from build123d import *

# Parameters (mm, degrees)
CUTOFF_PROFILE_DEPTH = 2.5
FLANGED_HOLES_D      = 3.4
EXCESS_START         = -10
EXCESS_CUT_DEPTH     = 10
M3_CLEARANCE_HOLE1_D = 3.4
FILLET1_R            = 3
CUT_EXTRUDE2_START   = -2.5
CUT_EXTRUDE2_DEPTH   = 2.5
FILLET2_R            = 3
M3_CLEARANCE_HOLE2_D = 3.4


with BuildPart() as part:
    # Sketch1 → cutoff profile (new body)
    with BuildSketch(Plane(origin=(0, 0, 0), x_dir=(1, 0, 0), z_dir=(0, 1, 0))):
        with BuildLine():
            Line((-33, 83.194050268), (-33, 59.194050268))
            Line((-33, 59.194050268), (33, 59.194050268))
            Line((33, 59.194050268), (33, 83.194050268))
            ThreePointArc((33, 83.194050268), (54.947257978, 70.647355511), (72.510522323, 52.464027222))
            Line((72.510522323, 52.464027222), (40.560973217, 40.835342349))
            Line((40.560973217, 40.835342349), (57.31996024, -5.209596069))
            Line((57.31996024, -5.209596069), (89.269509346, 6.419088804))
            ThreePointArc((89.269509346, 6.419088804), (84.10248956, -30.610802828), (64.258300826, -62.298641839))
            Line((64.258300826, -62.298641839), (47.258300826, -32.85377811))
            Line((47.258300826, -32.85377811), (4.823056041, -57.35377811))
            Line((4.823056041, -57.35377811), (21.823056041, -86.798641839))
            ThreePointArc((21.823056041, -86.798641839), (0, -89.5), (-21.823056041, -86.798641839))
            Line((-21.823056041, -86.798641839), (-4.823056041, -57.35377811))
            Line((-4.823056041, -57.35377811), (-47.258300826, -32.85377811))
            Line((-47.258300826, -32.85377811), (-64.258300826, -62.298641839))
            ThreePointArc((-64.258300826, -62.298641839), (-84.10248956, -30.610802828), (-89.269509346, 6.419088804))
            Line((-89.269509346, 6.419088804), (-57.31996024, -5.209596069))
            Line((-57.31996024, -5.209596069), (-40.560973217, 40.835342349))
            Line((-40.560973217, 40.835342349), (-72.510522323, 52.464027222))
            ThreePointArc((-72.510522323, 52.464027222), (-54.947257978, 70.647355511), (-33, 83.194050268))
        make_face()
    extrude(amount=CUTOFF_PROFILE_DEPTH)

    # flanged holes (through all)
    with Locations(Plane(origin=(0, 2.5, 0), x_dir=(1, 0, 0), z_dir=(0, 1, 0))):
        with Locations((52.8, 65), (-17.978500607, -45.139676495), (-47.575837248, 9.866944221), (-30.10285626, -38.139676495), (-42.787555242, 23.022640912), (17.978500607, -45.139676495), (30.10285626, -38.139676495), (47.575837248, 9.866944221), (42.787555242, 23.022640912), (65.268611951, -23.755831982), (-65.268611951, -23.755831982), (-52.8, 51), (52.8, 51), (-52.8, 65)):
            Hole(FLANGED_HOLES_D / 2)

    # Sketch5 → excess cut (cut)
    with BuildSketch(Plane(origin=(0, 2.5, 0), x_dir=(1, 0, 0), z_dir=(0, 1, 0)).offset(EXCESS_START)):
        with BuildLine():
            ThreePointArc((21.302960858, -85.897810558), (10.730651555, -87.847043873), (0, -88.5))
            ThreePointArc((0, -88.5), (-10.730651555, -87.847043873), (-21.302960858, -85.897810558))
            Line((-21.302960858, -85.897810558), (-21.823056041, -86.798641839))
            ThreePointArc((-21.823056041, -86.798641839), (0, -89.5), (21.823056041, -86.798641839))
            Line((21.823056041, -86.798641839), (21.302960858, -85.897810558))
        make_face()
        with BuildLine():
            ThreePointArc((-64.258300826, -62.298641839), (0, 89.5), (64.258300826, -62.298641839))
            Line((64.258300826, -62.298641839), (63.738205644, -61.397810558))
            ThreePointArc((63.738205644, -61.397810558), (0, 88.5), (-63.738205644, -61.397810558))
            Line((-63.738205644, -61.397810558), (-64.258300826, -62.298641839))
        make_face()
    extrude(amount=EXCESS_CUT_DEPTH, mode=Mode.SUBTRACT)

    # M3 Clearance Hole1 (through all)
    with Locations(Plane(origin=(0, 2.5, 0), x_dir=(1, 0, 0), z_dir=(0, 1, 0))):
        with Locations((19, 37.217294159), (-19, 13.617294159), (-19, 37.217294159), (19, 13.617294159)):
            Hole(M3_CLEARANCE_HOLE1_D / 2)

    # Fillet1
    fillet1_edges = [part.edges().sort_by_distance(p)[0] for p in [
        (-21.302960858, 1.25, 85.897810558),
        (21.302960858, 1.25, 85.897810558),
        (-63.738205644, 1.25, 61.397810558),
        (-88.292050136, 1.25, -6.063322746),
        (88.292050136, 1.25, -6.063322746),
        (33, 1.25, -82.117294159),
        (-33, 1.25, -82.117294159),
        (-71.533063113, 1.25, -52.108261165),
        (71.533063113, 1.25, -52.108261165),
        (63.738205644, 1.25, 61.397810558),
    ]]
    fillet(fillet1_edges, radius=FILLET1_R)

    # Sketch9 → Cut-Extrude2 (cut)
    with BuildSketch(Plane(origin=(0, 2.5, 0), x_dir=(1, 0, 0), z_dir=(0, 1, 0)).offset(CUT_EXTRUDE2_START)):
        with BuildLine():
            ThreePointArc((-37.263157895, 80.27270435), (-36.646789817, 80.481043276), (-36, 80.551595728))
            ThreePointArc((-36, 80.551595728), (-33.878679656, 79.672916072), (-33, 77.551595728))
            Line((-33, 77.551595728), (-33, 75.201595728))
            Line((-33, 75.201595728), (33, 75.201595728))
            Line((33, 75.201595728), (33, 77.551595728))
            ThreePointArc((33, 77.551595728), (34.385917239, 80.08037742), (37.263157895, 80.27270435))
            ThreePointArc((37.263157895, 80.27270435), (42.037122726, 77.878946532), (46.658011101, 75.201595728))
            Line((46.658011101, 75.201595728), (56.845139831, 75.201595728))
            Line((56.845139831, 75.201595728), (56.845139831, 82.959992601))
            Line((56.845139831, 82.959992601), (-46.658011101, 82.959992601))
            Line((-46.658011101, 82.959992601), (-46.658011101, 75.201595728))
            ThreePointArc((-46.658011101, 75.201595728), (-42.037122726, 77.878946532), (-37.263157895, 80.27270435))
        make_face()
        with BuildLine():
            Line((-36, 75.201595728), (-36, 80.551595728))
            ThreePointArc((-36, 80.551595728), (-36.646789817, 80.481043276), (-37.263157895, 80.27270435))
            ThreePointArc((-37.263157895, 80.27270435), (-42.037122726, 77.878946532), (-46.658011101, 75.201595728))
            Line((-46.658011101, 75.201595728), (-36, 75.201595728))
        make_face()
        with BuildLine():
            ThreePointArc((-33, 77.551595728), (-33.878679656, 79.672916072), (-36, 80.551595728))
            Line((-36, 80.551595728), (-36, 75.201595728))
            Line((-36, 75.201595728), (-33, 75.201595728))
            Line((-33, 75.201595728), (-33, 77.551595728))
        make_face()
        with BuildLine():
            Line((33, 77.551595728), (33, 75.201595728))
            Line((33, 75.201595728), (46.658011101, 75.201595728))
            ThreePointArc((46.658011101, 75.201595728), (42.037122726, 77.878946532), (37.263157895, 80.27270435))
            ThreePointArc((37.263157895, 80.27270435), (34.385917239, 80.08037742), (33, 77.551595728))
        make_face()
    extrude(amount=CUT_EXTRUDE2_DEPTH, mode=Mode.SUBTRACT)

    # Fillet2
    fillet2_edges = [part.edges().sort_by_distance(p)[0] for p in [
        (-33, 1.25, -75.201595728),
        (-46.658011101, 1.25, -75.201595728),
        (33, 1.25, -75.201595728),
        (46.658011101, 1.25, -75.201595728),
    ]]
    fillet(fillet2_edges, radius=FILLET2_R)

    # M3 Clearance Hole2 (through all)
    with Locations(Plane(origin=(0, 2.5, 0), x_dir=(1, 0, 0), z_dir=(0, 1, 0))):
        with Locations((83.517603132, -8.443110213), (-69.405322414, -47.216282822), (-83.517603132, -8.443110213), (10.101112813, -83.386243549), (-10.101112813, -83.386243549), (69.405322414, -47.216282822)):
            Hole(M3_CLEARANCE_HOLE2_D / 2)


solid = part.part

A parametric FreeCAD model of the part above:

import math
import FreeCAD as App
import Part
import Sketcher
Q = App.Units.Quantity


def edges_at(feature, points):
    """Names of the edges that pass closest to the given points."""
    edges = feature.Shape.Edges
    near = lambda p: min(range(len(edges)), key=lambda i: edges[i].distToShape(Part.Vertex(*p))[0])
    return sorted({f"Edge{near(p) + 1}" for p in points})


def add_polygon(sketch, points):
    """Adds a closed chain of lines whose ends are joined by coincident constraints."""
    first, n = sketch.GeometryCount, len(points)
    for a, b in zip(points, points[1:] + points[:1]):
        sketch.addGeometry(Part.LineSegment(App.Vector(*a, 0), App.Vector(*b, 0)), False)
    for i in range(n):
        sketch.addConstraint(Sketcher.Constraint("Coincident", first + i, 2, first + (i + 1) % n, 1))

doc = App.newDocument("Part")
body = doc.addObject("PartDesign::Body", "Body")

sketch1 = body.newObject("Sketcher::SketchObject", "Sketch")
sketch1.AttachmentSupport = (doc.getObject("XZ_Plane"), [""])
sketch1.MapMode = "FlatFace"
sketch1.addGeometry([
    Part.LineSegment(App.Vector(-33, -59.19405, 0), App.Vector(-33, -83.19405, 0)),
    Part.ArcOfCircle(Part.Circle(App.Vector(0, 0, 0), App.Vector(0, 0, 1), 89.5), math.radians(-144.11288), math.radians(-111.636395)),
    Part.LineSegment(App.Vector(-72.510522, -52.464027, 0), App.Vector(-40.560973, -40.835342, 0)),
    Part.LineSegment(App.Vector(-40.560973, -40.835342, 0), App.Vector(-57.31996, 5.209596, 0)),
    Part.LineSegment(App.Vector(-57.31996, 5.209596, 0), App.Vector(-89.269509, -6.419089, 0)),
    Part.ArcOfCircle(Part.Circle(App.Vector(0, 0, 0), App.Vector(0, 0, 1), 89.5), math.radians(135.88712), math.radians(184.11288)),
    Part.LineSegment(App.Vector(-64.258301, 62.298642, 0), App.Vector(-47.258301, 32.853778, 0)),
    Part.LineSegment(App.Vector(-47.258301, 32.853778, 0), App.Vector(-4.823056, 57.353778, 0)),
    Part.LineSegment(App.Vector(-4.823056, 57.353778, 0), App.Vector(-21.823056, 86.798642, 0)),
    Part.ArcOfCircle(Part.Circle(App.Vector(0, 0, 0), App.Vector(0, 0, 1), 89.5), math.radians(75.88712), math.radians(104.11288)),
    Part.LineSegment(App.Vector(21.823056, 86.798642, 0), App.Vector(4.823056, 57.353778, 0)),
    Part.LineSegment(App.Vector(4.823056, 57.353778, 0), App.Vector(47.258301, 32.853778, 0)),
    Part.LineSegment(App.Vector(47.258301, 32.853778, 0), App.Vector(64.258301, 62.298642, 0)),
    Part.ArcOfCircle(Part.Circle(App.Vector(0, 0, 0), App.Vector(0, 0, 1), 89.5), math.radians(-4.11288), math.radians(44.11288)),
    Part.LineSegment(App.Vector(89.269509, -6.419089, 0), App.Vector(57.31996, 5.209596, 0)),
    Part.LineSegment(App.Vector(57.31996, 5.209596, 0), App.Vector(40.560973, -40.835342, 0)),
    Part.LineSegment(App.Vector(40.560973, -40.835342, 0), App.Vector(72.510522, -52.464027, 0)),
    Part.ArcOfCircle(Part.Circle(App.Vector(0, 0, 0), App.Vector(0, 0, 1), 89.5), math.radians(-68.363605), math.radians(-35.88712)),
    Part.LineSegment(App.Vector(33, -83.19405, 0), App.Vector(33, -59.19405, 0)),
    Part.LineSegment(App.Vector(33, -59.19405, 0), App.Vector(-33, -59.19405, 0)),
], False)
sketch1.addConstraint([
    Sketcher.Constraint("Coincident", 0, 2, 1, 2),
    Sketcher.Constraint("Coincident", 1, 1, 2, 1),
    Sketcher.Constraint("Coincident", 2, 2, 3, 1),
    Sketcher.Constraint("Coincident", 3, 2, 4, 1),
    Sketcher.Constraint("Coincident", 4, 2, 5, 2),
    Sketcher.Constraint("Coincident", 5, 1, 6, 1),
    Sketcher.Constraint("Coincident", 6, 2, 7, 1),
    Sketcher.Constraint("Coincident", 7, 2, 8, 1),
    Sketcher.Constraint("Coincident", 8, 2, 9, 2),
    Sketcher.Constraint("Coincident", 9, 1, 10, 1),
    Sketcher.Constraint("Coincident", 10, 2, 11, 1),
    Sketcher.Constraint("Coincident", 11, 2, 12, 1),
    Sketcher.Constraint("Coincident", 12, 2, 13, 2),
    Sketcher.Constraint("Coincident", 13, 1, 14, 1),
    Sketcher.Constraint("Coincident", 14, 2, 15, 1),
    Sketcher.Constraint("Coincident", 15, 2, 16, 1),
    Sketcher.Constraint("Coincident", 16, 2, 17, 2),
    Sketcher.Constraint("Coincident", 17, 1, 18, 1),
    Sketcher.Constraint("Coincident", 18, 2, 19, 1),
    Sketcher.Constraint("Coincident", 19, 2, 0, 1),
    Sketcher.Constraint("Vertical", 0),
    Sketcher.Constraint("Vertical", 18),
    Sketcher.Constraint("Horizontal", 19),
    Sketcher.Constraint("Coincident", 1, 3, -1, 1),
    Sketcher.Constraint("Coincident", 5, 3, -1, 1),
    Sketcher.Constraint("Coincident", 9, 3, -1, 1),
    Sketcher.Constraint("Coincident", 13, 3, -1, 1),
    Sketcher.Constraint("Coincident", 17, 3, -1, 1),
    Sketcher.Constraint("Equal", 1, 5),
    Sketcher.Constraint("Equal", 5, 9),
    Sketcher.Constraint("Equal", 9, 13),
    Sketcher.Constraint("Equal", 13, 17),
    Sketcher.Constraint("Symmetric", 7, 2, 10, 2, -2),
    Sketcher.Constraint("Symmetric", 6, 2, 11, 2, -2),
    Sketcher.Constraint("Symmetric", 3, 2, 14, 2, -2),
    Sketcher.Constraint("Symmetric", 2, 2, 15, 2, -2),
    Sketcher.Constraint("Perpendicular", 2, 3),
    Sketcher.Constraint("Perpendicular", 3, 4),
    Sketcher.Constraint("Perpendicular", 6, 7),
    Sketcher.Constraint("Perpendicular", 7, 8),
    Sketcher.Constraint("Perpendicular", 10, 11),
    Sketcher.Constraint("Perpendicular", 11, 12),
    Sketcher.Constraint("Perpendicular", 14, 15),
    Sketcher.Constraint("Perpendicular", 15, 16),
    Sketcher.Constraint("Horizontal", 0, 2, 17, 1),
    Sketcher.Constraint("Equal", 2, 4),
    Sketcher.Constraint("Equal", 4, 6),
    Sketcher.Constraint("Equal", 3, 7),
    Sketcher.Constraint("Equal", 6, 8),
    Sketcher.Constraint("Radius", 1, Q("89.5 mm")),
    Sketcher.Constraint("DistanceX", 19, 2, 19, 1, Q("66 mm")),
    Sketcher.Constraint("DistanceY", 0, 2, 0, 1, Q("24 mm")),
    Sketcher.Constraint("Angle", 2, Q("20 deg")),
    Sketcher.Constraint("Angle", 6, Q("-60 deg")),
    Sketcher.Constraint("Distance", 2, Q("34 mm")),
    Sketcher.Constraint("Distance", 3, Q("49 mm")),
])
pad1 = body.newObject("PartDesign::Pad", "Pad")
pad1.Profile = sketch1
pad1.Length = 2.5
pad1.Reversed = True

sketch2 = body.newObject("Sketcher::SketchObject", "Sketch001")
sketch2.AttachmentSupport = (doc.getObject("XZ_Plane"), [""])
sketch2.MapMode = "FlatFace"
sketch2.AttachmentOffset = App.Placement(App.Vector(0, 0, -2.5), App.Rotation())
sketch2.addGeometry([
    Part.Circle(App.Vector(52.8, -65, 0), App.Vector(0, 0, 1), 1.7),
    Part.Circle(App.Vector(-17.978501, 45.139676, 0), App.Vector(0, 0, 1), 1.7),
    Part.Circle(App.Vector(-47.575837, -9.866944, 0), App.Vector(0, 0, 1), 1.7),
    Part.Circle(App.Vector(-30.102856, 38.139676, 0), App.Vector(0, 0, 1), 1.7),
    Part.Circle(App.Vector(-42.787555, -23.022641, 0), App.Vector(0, 0, 1), 1.7),
    Part.Circle(App.Vector(17.978501, 45.139676, 0), App.Vector(0, 0, 1), 1.7),
    Part.Circle(App.Vector(30.102856, 38.139676, 0), App.Vector(0, 0, 1), 1.7),
    Part.Circle(App.Vector(47.575837, -9.866944, 0), App.Vector(0, 0, 1), 1.7),
    Part.Circle(App.Vector(42.787555, -23.022641, 0), App.Vector(0, 0, 1), 1.7),
    Part.Circle(App.Vector(65.268612, 23.755832, 0), App.Vector(0, 0, 1), 1.7),
    Part.Circle(App.Vector(-65.268612, 23.755832, 0), App.Vector(0, 0, 1), 1.7),
    Part.Circle(App.Vector(-52.8, -51, 0), App.Vector(0, 0, 1), 1.7),
    Part.Circle(App.Vector(52.8, -51, 0), App.Vector(0, 0, 1), 1.7),
    Part.Circle(App.Vector(-52.8, -65, 0), App.Vector(0, 0, 1), 1.7),
], False)
sketch2.addConstraint([
    Sketcher.Constraint("Equal", 0, 1),
    Sketcher.Constraint("Equal", 1, 2),
    Sketcher.Constraint("Equal", 2, 3),
    Sketcher.Constraint("Equal", 3, 4),
    Sketcher.Constraint("Equal", 4, 5),
    Sketcher.Constraint("Equal", 5, 6),
    Sketcher.Constraint("Equal", 6, 7),
    Sketcher.Constraint("Equal", 7, 8),
    Sketcher.Constraint("Equal", 8, 9),
    Sketcher.Constraint("Equal", 9, 10),
    Sketcher.Constraint("Equal", 10, 11),
    Sketcher.Constraint("Equal", 11, 12),
    Sketcher.Constraint("Equal", 12, 13),
    Sketcher.Constraint("Symmetric", 1, 3, 5, 3, -2),
    Sketcher.Constraint("Symmetric", 3, 3, 6, 3, -2),
    Sketcher.Constraint("Symmetric", 2, 3, 7, 3, -2),
    Sketcher.Constraint("Symmetric", 4, 3, 8, 3, -2),
    Sketcher.Constraint("Symmetric", 9, 3, 10, 3, -2),
    Sketcher.Constraint("Symmetric", 11, 3, 12, 3, -2),
    Sketcher.Constraint("Symmetric", 0, 3, 13, 3, -2),
    Sketcher.Constraint("Vertical", 0, 3, 12, 3),
    Sketcher.Constraint("Diameter", 0, Q("3.4 mm")),
    Sketcher.Constraint("DistanceY", 0, 3, -1, 1, Q("65 mm")),
    Sketcher.Constraint("DistanceY", 11, 3, -1, 1, Q("51 mm")),
    Sketcher.Constraint("DistanceY", 3, 3, 1, 3, Q("7 mm")),
    Sketcher.Constraint("DistanceX", -1, 1, 0, 3, Q("52.8 mm")),
    Sketcher.Constraint("DistanceX", 1, 3, 5, 3, Q("35.957001 mm")),
    Sketcher.Constraint("DistanceX", 4, 3, 3, 3, Q("12.684699 mm")),
    Sketcher.Constraint("DistanceY", 4, 3, -1, 1, Q("23.022641 mm")),
    Sketcher.Constraint("DistanceX", -1, 1, 9, 3, Q("65.268612 mm")),
    Sketcher.Constraint("DistanceY", -1, 1, 9, 3, Q("23.755832 mm")),
    Sketcher.Constraint("DistanceY", 2, 3, 1, 3, Q("55.006621 mm")),
    Sketcher.Constraint("DistanceX", 2, 3, 3, 3, Q("17.472981 mm")),
    Sketcher.Constraint("DistanceX", 4, 3, 6, 3, Q("72.890412 mm")),
    Sketcher.Constraint("DistanceY", -1, 1, 1, 3, Q("45.139676 mm")),
])
doc.recompute()
hole = body.newObject("PartDesign::Hole", "Hole")
hole.Profile = sketch2
hole.ThreadType = "None"
hole.Diameter = 3.4
hole.DepthType = "ThroughAll"
hole.Reversed = True

sketch3 = body.newObject("Sketcher::SketchObject", "Sketch002")
sketch3.AttachmentSupport = (doc.getObject("XZ_Plane"), [""])
sketch3.MapMode = "FlatFace"
sketch3.AttachmentOffset = App.Placement(App.Vector(0, 0, 7.5), App.Rotation())
sketch3.addGeometry([
    Part.ArcOfCircle(Part.Circle(App.Vector(0, 0, 0), App.Vector(0, 0, 1), 88.5), math.radians(76.071467), math.radians(90)),
    Part.ArcOfCircle(Part.Circle(App.Vector(0, 0, 0), App.Vector(0, 0, 1), 88.5), math.radians(90), math.radians(103.928533)),
    Part.LineSegment(App.Vector(-21.302961, 85.897811, 0), App.Vector(-21.823056, 86.798642, 0)),
    Part.ArcOfCircle(Part.Circle(App.Vector(0, 0, 0), App.Vector(0, 0, 1), 89.5), math.radians(75.88712), math.radians(104.11288)),
    Part.LineSegment(App.Vector(21.823056, 86.798642, 0), App.Vector(21.302961, 85.897811, 0)),
    Part.ArcOfCircle(Part.Circle(App.Vector(0, 0, 0), App.Vector(0, 0, 1), 89.5), math.radians(135.88712), math.radians(404.11288)),
    Part.LineSegment(App.Vector(-64.258301, 62.298642, 0), App.Vector(-63.738206, 61.397811, 0)),
    Part.ArcOfCircle(Part.Circle(App.Vector(0, 0, 0), App.Vector(0, 0, 1), 88.5), math.radians(136.071467), math.radians(403.928533)),
    Part.LineSegment(App.Vector(63.738206, 61.397811, 0), App.Vector(64.258301, 62.298642, 0)),
], False)
sketch3.addConstraint([
    Sketcher.Constraint("Tangent", 0, 2, 1, 1),
    Sketcher.Constraint("Coincident", 1, 2, 2, 1),
    Sketcher.Constraint("Coincident", 2, 2, 3, 2),
    Sketcher.Constraint("Coincident", 3, 1, 4, 1),
    Sketcher.Constraint("Coincident", 4, 2, 0, 1),
    Sketcher.Constraint("Coincident", 5, 1, 6, 1),
    Sketcher.Constraint("Coincident", 6, 2, 7, 1),
    Sketcher.Constraint("Coincident", 7, 2, 8, 1),
    Sketcher.Constraint("Coincident", 8, 2, 5, 2),
    Sketcher.Constraint("Coincident", 0, 3, -1, 1),
    Sketcher.Constraint("Coincident", 3, 3, -1, 1),
    Sketcher.Constraint("Coincident", 5, 3, -1, 1),
    Sketcher.Constraint("Coincident", 7, 3, -1, 1),
    Sketcher.Constraint("Equal", 0, 1),
    Sketcher.Constraint("Equal", 3, 5),
    Sketcher.Constraint("Equal", 1, 7),
    Sketcher.Constraint("PointOnObject", 0, 2, -2),
    Sketcher.Constraint("Parallel", 2, 6),
    Sketcher.Constraint("Parallel", 4, 8),
    Sketcher.Constraint("Horizontal", 2, 2, 3, 1),
    Sketcher.Constraint("Horizontal", 1, 2, 4, 2),
    Sketcher.Constraint("Horizontal", 6, 2, 7, 2),
    Sketcher.Constraint("Equal", 4, 6),
    Sketcher.Constraint("Radius", 0, Q("88.5 mm")),
    Sketcher.Constraint("Radius", 3, Q("89.5 mm")),
    Sketcher.Constraint("Angle", 2, Q("120 deg")),
    Sketcher.Constraint("DistanceY", 5, 1, 2, 2, Q("24.5 mm")),
])
pocket1 = body.newObject("PartDesign::Pocket", "Pocket")
pocket1.Profile = sketch3
pocket1.Length = 10

sketch4 = body.newObject("Sketcher::SketchObject", "Sketch003")
sketch4.AttachmentSupport = (doc.getObject("XZ_Plane"), [""])
sketch4.MapMode = "FlatFace"
sketch4.AttachmentOffset = App.Placement(App.Vector(0, 0, -2.5), App.Rotation())
sketch4.addGeometry([
    Part.Circle(App.Vector(19, -37.217294, 0), App.Vector(0, 0, 1), 1.7),
    Part.Circle(App.Vector(-19, -13.617294, 0), App.Vector(0, 0, 1), 1.7),
    Part.Circle(App.Vector(-19, -37.217294, 0), App.Vector(0, 0, 1), 1.7),
    Part.Circle(App.Vector(19, -13.617294, 0), App.Vector(0, 0, 1), 1.7),
], False)
sketch4.addConstraint([
    Sketcher.Constraint("Equal", 0, 1),
    Sketcher.Constraint("Equal", 1, 2),
    Sketcher.Constraint("Equal", 2, 3),
    Sketcher.Constraint("Symmetric", 0, 3, 2, 3, -2),
    Sketcher.Constraint("Symmetric", 1, 3, 3, 3, -2),
    Sketcher.Constraint("Vertical", 1, 3, 2, 3),
    Sketcher.Constraint("Diameter", 0, Q("3.4 mm")),
    Sketcher.Constraint("DistanceX", -1, 1, 0, 3, Q("19 mm")),
    Sketcher.Constraint("DistanceY", 0, 3, 1, 3, Q("23.6 mm")),
    Sketcher.Constraint("DistanceY", 0, 3, -1, 1, Q("37.217294 mm")),
])
doc.recompute()
hole2 = body.newObject("PartDesign::Hole", "Hole001")
hole2.Profile = sketch4
hole2.ThreadType = "None"
hole2.Diameter = 3.4
hole2.DepthType = "ThroughAll"
hole2.Reversed = True
doc.recompute()

fillet = body.newObject("PartDesign::Fillet", "Fillet")
fillet.Base = (hole2, edges_at(hole2, [
    (-21.303, 1.25, 85.898),
    (21.303, 1.25, 85.898),
    (-63.738, 1.25, 61.398),
    (-88.292, 1.25, -6.063),
    (88.292, 1.25, -6.063),
    (33, 1.25, -82.117),
    (-33, 1.25, -82.117),
    (-71.533, 1.25, -52.108),
    (71.533, 1.25, -52.108),
    (63.738, 1.25, 61.398),
]))
fillet.Radius = 3

sketch5 = body.newObject("Sketcher::SketchObject", "Sketch004")
sketch5.AttachmentSupport = (doc.getObject("XZ_Plane"), [""])
sketch5.MapMode = "FlatFace"
add_polygon(sketch5, [(56.84514, -75.201596), (56.84514, -82.959993), (-46.658011, -82.959993), (-46.658011, -75.201596)])
sketch5.addConstraint([
    Sketcher.Constraint("Vertical", 0),
    Sketcher.Constraint("Horizontal", 1),
    Sketcher.Constraint("Vertical", 2),
    Sketcher.Constraint("Horizontal", 3),
    Sketcher.Constraint("DistanceX", 1, 2, 1, 1, Q("103.503151 mm")),
    Sketcher.Constraint("DistanceY", 0, 2, 0, 1, Q("7.758397 mm")),
    Sketcher.Constraint("DistanceX", -1, 1, 0, 2, Q("56.84514 mm")),
    Sketcher.Constraint("DistanceY", 0, 2, -1, 1, Q("82.959993 mm")),
])
pocket2 = body.newObject("PartDesign::Pocket", "Pocket001")
pocket2.Profile = sketch5
pocket2.Length = 2.5
doc.recompute()

fillet2 = body.newObject("PartDesign::Fillet", "Fillet001")
fillet2.Base = (pocket2, edges_at(pocket2, [
    (-33, 1.25, -75.202),
    (-46.658, 1.25, -75.202),
    (33, 1.25, -75.202),
    (46.658, 1.25, -75.202),
]))
fillet2.Radius = 3

sketch6 = body.newObject("Sketcher::SketchObject", "Sketch005")
sketch6.AttachmentSupport = (doc.getObject("XZ_Plane"), [""])
sketch6.MapMode = "FlatFace"
sketch6.AttachmentOffset = App.Placement(App.Vector(0, 0, -2.5), App.Rotation())
sketch6.addGeometry([
    Part.Circle(App.Vector(83.517603, 8.44311, 0), App.Vector(0, 0, 1), 1.7),
    Part.Circle(App.Vector(-69.405322, 47.216283, 0), App.Vector(0, 0, 1), 1.7),
    Part.Circle(App.Vector(-83.517603, 8.44311, 0), App.Vector(0, 0, 1), 1.7),
    Part.Circle(App.Vector(10.101113, 83.386244, 0), App.Vector(0, 0, 1), 1.7),
    Part.Circle(App.Vector(-10.101113, 83.386244, 0), App.Vector(0, 0, 1), 1.7),
    Part.Circle(App.Vector(69.405322, 47.216283, 0), App.Vector(0, 0, 1), 1.7),
], False)
sketch6.addConstraint([
    Sketcher.Constraint("Equal", 0, 1),
    Sketcher.Constraint("Equal", 1, 2),
    Sketcher.Constraint("Equal", 2, 3),
    Sketcher.Constraint("Equal", 3, 4),
    Sketcher.Constraint("Equal", 4, 5),
    Sketcher.Constraint("Symmetric", 0, 3, 2, 3, -2),
    Sketcher.Constraint("Symmetric", 3, 3, 4, 3, -2),
    Sketcher.Constraint("Symmetric", 1, 3, 5, 3, -2),
    Sketcher.Constraint("Diameter", 0, Q("3.4 mm")),
    Sketcher.Constraint("DistanceY", -1, 1, 0, 3, Q("8.44311 mm")),
    Sketcher.Constraint("DistanceX", 2, 3, 1, 3, Q("14.112281 mm")),
    Sketcher.Constraint("DistanceY", 1, 3, 3, 3, Q("36.169961 mm")),
    Sketcher.Constraint("DistanceX", 3, 3, 0, 3, Q("73.41649 mm")),
    Sketcher.Constraint("DistanceX", -1, 1, 0, 3, Q("83.517603 mm")),
    Sketcher.Constraint("DistanceY", -1, 1, 1, 3, Q("47.216283 mm")),
])
doc.recompute()
hole3 = body.newObject("PartDesign::Hole", "Hole002")
hole3.Profile = sketch6
hole3.ThreadType = "None"
hole3.Diameter = 3.4
hole3.DepthType = "ThroughAll"
hole3.Reversed = True

doc.recompute()
